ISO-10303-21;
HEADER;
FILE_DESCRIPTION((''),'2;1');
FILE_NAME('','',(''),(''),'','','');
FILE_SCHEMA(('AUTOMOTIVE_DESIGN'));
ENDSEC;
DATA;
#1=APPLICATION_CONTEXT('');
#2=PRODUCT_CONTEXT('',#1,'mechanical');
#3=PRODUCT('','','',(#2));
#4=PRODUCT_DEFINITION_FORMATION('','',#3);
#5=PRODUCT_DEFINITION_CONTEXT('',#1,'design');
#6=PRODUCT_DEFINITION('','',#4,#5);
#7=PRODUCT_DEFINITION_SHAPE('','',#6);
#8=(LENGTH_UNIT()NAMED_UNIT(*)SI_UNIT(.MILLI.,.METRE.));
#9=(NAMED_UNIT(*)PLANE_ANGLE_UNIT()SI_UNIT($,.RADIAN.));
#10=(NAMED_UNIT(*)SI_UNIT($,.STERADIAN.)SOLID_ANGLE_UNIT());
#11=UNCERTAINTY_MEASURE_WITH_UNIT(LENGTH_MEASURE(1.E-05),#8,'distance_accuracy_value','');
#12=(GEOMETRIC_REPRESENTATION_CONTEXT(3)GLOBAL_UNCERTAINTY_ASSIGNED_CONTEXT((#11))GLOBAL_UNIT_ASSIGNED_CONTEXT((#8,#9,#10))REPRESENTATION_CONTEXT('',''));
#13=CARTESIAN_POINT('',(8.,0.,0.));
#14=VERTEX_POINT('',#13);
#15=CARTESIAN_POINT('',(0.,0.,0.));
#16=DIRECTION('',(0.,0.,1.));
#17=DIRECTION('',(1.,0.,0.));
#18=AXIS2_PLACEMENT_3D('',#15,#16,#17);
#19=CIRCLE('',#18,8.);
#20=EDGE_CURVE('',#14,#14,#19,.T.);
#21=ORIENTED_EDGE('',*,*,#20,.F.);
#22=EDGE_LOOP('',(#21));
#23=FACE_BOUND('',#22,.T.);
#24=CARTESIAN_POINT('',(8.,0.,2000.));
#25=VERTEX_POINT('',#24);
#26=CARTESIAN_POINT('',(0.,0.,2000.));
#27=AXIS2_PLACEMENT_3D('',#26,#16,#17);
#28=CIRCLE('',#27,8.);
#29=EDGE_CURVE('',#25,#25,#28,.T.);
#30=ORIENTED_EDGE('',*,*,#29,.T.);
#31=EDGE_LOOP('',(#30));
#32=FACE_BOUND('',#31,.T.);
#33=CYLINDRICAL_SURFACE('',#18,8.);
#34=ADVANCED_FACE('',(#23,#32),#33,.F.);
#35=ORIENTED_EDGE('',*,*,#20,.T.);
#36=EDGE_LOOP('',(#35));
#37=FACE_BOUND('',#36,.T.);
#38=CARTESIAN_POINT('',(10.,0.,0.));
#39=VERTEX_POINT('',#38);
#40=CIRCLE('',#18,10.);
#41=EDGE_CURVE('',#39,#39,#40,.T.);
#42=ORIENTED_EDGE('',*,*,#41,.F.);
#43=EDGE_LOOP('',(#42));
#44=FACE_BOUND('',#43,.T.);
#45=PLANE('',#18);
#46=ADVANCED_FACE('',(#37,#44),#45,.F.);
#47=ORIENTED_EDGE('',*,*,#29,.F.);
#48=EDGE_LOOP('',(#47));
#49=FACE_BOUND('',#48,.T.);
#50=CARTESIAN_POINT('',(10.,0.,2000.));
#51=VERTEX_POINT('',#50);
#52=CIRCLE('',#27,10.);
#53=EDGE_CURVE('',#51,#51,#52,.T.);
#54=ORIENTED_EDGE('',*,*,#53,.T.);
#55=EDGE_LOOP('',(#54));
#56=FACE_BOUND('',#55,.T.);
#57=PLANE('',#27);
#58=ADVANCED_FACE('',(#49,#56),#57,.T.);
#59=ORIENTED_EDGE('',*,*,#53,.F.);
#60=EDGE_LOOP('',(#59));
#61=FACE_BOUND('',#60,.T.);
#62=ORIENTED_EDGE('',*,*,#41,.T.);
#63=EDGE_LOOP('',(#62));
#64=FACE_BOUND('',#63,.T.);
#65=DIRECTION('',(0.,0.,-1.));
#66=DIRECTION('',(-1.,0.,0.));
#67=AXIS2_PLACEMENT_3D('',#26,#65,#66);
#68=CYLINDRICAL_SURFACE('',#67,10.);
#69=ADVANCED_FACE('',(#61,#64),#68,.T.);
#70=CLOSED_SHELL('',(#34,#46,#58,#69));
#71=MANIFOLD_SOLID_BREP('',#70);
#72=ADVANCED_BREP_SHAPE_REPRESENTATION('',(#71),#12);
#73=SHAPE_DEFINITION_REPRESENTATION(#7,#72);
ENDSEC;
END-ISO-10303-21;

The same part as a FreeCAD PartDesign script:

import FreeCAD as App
import Part
import Sketcher

V = App.Vector
Q = App.Units.Quantity

doc = App.newDocument("Part")
body = doc.addObject("PartDesign::Body", "Body")

sketch1 = body.newObject("Sketcher::SketchObject", "Sketch")
sketch1.AttachmentSupport = (doc.getObject("XY_Plane"), [""])
sketch1.MapMode = "FlatFace"
sketch1.addGeometry(Part.Circle(V(0, 0, 0), V(0, 0, 1), 10), False)
sketch1.addConstraint(Sketcher.Constraint("Coincident", 0, 3, -1, 1))
sketch1.addConstraint(Sketcher.Constraint("Diameter", 0, Q("20 mm")))
pad1 = body.newObject("PartDesign::Pad", "Pad")
pad1.Profile = sketch1
pad1.Length = 2000

sketch2 = body.newObject("Sketcher::SketchObject", "Sketch001")
sketch2.AttachmentSupport = (doc.getObject("XY_Plane"), [""])
sketch2.MapMode = "FlatFace"
sketch2.AttachmentOffset = App.Placement(V(0, 0, 2000), App.Rotation())
sketch2.addGeometry(Part.Circle(V(0, 0, 0), V(0, 0, 1), 8), False)
sketch2.addConstraint(Sketcher.Constraint("Coincident", 0, 3, -1, 1))
sketch2.addConstraint(Sketcher.Constraint("Diameter", 0, Q("16 mm")))
pocket1 = body.newObject("PartDesign::Pocket", "Pocket")
pocket1.Profile = sketch2
pocket1.Length = 2000

doc.recompute()
